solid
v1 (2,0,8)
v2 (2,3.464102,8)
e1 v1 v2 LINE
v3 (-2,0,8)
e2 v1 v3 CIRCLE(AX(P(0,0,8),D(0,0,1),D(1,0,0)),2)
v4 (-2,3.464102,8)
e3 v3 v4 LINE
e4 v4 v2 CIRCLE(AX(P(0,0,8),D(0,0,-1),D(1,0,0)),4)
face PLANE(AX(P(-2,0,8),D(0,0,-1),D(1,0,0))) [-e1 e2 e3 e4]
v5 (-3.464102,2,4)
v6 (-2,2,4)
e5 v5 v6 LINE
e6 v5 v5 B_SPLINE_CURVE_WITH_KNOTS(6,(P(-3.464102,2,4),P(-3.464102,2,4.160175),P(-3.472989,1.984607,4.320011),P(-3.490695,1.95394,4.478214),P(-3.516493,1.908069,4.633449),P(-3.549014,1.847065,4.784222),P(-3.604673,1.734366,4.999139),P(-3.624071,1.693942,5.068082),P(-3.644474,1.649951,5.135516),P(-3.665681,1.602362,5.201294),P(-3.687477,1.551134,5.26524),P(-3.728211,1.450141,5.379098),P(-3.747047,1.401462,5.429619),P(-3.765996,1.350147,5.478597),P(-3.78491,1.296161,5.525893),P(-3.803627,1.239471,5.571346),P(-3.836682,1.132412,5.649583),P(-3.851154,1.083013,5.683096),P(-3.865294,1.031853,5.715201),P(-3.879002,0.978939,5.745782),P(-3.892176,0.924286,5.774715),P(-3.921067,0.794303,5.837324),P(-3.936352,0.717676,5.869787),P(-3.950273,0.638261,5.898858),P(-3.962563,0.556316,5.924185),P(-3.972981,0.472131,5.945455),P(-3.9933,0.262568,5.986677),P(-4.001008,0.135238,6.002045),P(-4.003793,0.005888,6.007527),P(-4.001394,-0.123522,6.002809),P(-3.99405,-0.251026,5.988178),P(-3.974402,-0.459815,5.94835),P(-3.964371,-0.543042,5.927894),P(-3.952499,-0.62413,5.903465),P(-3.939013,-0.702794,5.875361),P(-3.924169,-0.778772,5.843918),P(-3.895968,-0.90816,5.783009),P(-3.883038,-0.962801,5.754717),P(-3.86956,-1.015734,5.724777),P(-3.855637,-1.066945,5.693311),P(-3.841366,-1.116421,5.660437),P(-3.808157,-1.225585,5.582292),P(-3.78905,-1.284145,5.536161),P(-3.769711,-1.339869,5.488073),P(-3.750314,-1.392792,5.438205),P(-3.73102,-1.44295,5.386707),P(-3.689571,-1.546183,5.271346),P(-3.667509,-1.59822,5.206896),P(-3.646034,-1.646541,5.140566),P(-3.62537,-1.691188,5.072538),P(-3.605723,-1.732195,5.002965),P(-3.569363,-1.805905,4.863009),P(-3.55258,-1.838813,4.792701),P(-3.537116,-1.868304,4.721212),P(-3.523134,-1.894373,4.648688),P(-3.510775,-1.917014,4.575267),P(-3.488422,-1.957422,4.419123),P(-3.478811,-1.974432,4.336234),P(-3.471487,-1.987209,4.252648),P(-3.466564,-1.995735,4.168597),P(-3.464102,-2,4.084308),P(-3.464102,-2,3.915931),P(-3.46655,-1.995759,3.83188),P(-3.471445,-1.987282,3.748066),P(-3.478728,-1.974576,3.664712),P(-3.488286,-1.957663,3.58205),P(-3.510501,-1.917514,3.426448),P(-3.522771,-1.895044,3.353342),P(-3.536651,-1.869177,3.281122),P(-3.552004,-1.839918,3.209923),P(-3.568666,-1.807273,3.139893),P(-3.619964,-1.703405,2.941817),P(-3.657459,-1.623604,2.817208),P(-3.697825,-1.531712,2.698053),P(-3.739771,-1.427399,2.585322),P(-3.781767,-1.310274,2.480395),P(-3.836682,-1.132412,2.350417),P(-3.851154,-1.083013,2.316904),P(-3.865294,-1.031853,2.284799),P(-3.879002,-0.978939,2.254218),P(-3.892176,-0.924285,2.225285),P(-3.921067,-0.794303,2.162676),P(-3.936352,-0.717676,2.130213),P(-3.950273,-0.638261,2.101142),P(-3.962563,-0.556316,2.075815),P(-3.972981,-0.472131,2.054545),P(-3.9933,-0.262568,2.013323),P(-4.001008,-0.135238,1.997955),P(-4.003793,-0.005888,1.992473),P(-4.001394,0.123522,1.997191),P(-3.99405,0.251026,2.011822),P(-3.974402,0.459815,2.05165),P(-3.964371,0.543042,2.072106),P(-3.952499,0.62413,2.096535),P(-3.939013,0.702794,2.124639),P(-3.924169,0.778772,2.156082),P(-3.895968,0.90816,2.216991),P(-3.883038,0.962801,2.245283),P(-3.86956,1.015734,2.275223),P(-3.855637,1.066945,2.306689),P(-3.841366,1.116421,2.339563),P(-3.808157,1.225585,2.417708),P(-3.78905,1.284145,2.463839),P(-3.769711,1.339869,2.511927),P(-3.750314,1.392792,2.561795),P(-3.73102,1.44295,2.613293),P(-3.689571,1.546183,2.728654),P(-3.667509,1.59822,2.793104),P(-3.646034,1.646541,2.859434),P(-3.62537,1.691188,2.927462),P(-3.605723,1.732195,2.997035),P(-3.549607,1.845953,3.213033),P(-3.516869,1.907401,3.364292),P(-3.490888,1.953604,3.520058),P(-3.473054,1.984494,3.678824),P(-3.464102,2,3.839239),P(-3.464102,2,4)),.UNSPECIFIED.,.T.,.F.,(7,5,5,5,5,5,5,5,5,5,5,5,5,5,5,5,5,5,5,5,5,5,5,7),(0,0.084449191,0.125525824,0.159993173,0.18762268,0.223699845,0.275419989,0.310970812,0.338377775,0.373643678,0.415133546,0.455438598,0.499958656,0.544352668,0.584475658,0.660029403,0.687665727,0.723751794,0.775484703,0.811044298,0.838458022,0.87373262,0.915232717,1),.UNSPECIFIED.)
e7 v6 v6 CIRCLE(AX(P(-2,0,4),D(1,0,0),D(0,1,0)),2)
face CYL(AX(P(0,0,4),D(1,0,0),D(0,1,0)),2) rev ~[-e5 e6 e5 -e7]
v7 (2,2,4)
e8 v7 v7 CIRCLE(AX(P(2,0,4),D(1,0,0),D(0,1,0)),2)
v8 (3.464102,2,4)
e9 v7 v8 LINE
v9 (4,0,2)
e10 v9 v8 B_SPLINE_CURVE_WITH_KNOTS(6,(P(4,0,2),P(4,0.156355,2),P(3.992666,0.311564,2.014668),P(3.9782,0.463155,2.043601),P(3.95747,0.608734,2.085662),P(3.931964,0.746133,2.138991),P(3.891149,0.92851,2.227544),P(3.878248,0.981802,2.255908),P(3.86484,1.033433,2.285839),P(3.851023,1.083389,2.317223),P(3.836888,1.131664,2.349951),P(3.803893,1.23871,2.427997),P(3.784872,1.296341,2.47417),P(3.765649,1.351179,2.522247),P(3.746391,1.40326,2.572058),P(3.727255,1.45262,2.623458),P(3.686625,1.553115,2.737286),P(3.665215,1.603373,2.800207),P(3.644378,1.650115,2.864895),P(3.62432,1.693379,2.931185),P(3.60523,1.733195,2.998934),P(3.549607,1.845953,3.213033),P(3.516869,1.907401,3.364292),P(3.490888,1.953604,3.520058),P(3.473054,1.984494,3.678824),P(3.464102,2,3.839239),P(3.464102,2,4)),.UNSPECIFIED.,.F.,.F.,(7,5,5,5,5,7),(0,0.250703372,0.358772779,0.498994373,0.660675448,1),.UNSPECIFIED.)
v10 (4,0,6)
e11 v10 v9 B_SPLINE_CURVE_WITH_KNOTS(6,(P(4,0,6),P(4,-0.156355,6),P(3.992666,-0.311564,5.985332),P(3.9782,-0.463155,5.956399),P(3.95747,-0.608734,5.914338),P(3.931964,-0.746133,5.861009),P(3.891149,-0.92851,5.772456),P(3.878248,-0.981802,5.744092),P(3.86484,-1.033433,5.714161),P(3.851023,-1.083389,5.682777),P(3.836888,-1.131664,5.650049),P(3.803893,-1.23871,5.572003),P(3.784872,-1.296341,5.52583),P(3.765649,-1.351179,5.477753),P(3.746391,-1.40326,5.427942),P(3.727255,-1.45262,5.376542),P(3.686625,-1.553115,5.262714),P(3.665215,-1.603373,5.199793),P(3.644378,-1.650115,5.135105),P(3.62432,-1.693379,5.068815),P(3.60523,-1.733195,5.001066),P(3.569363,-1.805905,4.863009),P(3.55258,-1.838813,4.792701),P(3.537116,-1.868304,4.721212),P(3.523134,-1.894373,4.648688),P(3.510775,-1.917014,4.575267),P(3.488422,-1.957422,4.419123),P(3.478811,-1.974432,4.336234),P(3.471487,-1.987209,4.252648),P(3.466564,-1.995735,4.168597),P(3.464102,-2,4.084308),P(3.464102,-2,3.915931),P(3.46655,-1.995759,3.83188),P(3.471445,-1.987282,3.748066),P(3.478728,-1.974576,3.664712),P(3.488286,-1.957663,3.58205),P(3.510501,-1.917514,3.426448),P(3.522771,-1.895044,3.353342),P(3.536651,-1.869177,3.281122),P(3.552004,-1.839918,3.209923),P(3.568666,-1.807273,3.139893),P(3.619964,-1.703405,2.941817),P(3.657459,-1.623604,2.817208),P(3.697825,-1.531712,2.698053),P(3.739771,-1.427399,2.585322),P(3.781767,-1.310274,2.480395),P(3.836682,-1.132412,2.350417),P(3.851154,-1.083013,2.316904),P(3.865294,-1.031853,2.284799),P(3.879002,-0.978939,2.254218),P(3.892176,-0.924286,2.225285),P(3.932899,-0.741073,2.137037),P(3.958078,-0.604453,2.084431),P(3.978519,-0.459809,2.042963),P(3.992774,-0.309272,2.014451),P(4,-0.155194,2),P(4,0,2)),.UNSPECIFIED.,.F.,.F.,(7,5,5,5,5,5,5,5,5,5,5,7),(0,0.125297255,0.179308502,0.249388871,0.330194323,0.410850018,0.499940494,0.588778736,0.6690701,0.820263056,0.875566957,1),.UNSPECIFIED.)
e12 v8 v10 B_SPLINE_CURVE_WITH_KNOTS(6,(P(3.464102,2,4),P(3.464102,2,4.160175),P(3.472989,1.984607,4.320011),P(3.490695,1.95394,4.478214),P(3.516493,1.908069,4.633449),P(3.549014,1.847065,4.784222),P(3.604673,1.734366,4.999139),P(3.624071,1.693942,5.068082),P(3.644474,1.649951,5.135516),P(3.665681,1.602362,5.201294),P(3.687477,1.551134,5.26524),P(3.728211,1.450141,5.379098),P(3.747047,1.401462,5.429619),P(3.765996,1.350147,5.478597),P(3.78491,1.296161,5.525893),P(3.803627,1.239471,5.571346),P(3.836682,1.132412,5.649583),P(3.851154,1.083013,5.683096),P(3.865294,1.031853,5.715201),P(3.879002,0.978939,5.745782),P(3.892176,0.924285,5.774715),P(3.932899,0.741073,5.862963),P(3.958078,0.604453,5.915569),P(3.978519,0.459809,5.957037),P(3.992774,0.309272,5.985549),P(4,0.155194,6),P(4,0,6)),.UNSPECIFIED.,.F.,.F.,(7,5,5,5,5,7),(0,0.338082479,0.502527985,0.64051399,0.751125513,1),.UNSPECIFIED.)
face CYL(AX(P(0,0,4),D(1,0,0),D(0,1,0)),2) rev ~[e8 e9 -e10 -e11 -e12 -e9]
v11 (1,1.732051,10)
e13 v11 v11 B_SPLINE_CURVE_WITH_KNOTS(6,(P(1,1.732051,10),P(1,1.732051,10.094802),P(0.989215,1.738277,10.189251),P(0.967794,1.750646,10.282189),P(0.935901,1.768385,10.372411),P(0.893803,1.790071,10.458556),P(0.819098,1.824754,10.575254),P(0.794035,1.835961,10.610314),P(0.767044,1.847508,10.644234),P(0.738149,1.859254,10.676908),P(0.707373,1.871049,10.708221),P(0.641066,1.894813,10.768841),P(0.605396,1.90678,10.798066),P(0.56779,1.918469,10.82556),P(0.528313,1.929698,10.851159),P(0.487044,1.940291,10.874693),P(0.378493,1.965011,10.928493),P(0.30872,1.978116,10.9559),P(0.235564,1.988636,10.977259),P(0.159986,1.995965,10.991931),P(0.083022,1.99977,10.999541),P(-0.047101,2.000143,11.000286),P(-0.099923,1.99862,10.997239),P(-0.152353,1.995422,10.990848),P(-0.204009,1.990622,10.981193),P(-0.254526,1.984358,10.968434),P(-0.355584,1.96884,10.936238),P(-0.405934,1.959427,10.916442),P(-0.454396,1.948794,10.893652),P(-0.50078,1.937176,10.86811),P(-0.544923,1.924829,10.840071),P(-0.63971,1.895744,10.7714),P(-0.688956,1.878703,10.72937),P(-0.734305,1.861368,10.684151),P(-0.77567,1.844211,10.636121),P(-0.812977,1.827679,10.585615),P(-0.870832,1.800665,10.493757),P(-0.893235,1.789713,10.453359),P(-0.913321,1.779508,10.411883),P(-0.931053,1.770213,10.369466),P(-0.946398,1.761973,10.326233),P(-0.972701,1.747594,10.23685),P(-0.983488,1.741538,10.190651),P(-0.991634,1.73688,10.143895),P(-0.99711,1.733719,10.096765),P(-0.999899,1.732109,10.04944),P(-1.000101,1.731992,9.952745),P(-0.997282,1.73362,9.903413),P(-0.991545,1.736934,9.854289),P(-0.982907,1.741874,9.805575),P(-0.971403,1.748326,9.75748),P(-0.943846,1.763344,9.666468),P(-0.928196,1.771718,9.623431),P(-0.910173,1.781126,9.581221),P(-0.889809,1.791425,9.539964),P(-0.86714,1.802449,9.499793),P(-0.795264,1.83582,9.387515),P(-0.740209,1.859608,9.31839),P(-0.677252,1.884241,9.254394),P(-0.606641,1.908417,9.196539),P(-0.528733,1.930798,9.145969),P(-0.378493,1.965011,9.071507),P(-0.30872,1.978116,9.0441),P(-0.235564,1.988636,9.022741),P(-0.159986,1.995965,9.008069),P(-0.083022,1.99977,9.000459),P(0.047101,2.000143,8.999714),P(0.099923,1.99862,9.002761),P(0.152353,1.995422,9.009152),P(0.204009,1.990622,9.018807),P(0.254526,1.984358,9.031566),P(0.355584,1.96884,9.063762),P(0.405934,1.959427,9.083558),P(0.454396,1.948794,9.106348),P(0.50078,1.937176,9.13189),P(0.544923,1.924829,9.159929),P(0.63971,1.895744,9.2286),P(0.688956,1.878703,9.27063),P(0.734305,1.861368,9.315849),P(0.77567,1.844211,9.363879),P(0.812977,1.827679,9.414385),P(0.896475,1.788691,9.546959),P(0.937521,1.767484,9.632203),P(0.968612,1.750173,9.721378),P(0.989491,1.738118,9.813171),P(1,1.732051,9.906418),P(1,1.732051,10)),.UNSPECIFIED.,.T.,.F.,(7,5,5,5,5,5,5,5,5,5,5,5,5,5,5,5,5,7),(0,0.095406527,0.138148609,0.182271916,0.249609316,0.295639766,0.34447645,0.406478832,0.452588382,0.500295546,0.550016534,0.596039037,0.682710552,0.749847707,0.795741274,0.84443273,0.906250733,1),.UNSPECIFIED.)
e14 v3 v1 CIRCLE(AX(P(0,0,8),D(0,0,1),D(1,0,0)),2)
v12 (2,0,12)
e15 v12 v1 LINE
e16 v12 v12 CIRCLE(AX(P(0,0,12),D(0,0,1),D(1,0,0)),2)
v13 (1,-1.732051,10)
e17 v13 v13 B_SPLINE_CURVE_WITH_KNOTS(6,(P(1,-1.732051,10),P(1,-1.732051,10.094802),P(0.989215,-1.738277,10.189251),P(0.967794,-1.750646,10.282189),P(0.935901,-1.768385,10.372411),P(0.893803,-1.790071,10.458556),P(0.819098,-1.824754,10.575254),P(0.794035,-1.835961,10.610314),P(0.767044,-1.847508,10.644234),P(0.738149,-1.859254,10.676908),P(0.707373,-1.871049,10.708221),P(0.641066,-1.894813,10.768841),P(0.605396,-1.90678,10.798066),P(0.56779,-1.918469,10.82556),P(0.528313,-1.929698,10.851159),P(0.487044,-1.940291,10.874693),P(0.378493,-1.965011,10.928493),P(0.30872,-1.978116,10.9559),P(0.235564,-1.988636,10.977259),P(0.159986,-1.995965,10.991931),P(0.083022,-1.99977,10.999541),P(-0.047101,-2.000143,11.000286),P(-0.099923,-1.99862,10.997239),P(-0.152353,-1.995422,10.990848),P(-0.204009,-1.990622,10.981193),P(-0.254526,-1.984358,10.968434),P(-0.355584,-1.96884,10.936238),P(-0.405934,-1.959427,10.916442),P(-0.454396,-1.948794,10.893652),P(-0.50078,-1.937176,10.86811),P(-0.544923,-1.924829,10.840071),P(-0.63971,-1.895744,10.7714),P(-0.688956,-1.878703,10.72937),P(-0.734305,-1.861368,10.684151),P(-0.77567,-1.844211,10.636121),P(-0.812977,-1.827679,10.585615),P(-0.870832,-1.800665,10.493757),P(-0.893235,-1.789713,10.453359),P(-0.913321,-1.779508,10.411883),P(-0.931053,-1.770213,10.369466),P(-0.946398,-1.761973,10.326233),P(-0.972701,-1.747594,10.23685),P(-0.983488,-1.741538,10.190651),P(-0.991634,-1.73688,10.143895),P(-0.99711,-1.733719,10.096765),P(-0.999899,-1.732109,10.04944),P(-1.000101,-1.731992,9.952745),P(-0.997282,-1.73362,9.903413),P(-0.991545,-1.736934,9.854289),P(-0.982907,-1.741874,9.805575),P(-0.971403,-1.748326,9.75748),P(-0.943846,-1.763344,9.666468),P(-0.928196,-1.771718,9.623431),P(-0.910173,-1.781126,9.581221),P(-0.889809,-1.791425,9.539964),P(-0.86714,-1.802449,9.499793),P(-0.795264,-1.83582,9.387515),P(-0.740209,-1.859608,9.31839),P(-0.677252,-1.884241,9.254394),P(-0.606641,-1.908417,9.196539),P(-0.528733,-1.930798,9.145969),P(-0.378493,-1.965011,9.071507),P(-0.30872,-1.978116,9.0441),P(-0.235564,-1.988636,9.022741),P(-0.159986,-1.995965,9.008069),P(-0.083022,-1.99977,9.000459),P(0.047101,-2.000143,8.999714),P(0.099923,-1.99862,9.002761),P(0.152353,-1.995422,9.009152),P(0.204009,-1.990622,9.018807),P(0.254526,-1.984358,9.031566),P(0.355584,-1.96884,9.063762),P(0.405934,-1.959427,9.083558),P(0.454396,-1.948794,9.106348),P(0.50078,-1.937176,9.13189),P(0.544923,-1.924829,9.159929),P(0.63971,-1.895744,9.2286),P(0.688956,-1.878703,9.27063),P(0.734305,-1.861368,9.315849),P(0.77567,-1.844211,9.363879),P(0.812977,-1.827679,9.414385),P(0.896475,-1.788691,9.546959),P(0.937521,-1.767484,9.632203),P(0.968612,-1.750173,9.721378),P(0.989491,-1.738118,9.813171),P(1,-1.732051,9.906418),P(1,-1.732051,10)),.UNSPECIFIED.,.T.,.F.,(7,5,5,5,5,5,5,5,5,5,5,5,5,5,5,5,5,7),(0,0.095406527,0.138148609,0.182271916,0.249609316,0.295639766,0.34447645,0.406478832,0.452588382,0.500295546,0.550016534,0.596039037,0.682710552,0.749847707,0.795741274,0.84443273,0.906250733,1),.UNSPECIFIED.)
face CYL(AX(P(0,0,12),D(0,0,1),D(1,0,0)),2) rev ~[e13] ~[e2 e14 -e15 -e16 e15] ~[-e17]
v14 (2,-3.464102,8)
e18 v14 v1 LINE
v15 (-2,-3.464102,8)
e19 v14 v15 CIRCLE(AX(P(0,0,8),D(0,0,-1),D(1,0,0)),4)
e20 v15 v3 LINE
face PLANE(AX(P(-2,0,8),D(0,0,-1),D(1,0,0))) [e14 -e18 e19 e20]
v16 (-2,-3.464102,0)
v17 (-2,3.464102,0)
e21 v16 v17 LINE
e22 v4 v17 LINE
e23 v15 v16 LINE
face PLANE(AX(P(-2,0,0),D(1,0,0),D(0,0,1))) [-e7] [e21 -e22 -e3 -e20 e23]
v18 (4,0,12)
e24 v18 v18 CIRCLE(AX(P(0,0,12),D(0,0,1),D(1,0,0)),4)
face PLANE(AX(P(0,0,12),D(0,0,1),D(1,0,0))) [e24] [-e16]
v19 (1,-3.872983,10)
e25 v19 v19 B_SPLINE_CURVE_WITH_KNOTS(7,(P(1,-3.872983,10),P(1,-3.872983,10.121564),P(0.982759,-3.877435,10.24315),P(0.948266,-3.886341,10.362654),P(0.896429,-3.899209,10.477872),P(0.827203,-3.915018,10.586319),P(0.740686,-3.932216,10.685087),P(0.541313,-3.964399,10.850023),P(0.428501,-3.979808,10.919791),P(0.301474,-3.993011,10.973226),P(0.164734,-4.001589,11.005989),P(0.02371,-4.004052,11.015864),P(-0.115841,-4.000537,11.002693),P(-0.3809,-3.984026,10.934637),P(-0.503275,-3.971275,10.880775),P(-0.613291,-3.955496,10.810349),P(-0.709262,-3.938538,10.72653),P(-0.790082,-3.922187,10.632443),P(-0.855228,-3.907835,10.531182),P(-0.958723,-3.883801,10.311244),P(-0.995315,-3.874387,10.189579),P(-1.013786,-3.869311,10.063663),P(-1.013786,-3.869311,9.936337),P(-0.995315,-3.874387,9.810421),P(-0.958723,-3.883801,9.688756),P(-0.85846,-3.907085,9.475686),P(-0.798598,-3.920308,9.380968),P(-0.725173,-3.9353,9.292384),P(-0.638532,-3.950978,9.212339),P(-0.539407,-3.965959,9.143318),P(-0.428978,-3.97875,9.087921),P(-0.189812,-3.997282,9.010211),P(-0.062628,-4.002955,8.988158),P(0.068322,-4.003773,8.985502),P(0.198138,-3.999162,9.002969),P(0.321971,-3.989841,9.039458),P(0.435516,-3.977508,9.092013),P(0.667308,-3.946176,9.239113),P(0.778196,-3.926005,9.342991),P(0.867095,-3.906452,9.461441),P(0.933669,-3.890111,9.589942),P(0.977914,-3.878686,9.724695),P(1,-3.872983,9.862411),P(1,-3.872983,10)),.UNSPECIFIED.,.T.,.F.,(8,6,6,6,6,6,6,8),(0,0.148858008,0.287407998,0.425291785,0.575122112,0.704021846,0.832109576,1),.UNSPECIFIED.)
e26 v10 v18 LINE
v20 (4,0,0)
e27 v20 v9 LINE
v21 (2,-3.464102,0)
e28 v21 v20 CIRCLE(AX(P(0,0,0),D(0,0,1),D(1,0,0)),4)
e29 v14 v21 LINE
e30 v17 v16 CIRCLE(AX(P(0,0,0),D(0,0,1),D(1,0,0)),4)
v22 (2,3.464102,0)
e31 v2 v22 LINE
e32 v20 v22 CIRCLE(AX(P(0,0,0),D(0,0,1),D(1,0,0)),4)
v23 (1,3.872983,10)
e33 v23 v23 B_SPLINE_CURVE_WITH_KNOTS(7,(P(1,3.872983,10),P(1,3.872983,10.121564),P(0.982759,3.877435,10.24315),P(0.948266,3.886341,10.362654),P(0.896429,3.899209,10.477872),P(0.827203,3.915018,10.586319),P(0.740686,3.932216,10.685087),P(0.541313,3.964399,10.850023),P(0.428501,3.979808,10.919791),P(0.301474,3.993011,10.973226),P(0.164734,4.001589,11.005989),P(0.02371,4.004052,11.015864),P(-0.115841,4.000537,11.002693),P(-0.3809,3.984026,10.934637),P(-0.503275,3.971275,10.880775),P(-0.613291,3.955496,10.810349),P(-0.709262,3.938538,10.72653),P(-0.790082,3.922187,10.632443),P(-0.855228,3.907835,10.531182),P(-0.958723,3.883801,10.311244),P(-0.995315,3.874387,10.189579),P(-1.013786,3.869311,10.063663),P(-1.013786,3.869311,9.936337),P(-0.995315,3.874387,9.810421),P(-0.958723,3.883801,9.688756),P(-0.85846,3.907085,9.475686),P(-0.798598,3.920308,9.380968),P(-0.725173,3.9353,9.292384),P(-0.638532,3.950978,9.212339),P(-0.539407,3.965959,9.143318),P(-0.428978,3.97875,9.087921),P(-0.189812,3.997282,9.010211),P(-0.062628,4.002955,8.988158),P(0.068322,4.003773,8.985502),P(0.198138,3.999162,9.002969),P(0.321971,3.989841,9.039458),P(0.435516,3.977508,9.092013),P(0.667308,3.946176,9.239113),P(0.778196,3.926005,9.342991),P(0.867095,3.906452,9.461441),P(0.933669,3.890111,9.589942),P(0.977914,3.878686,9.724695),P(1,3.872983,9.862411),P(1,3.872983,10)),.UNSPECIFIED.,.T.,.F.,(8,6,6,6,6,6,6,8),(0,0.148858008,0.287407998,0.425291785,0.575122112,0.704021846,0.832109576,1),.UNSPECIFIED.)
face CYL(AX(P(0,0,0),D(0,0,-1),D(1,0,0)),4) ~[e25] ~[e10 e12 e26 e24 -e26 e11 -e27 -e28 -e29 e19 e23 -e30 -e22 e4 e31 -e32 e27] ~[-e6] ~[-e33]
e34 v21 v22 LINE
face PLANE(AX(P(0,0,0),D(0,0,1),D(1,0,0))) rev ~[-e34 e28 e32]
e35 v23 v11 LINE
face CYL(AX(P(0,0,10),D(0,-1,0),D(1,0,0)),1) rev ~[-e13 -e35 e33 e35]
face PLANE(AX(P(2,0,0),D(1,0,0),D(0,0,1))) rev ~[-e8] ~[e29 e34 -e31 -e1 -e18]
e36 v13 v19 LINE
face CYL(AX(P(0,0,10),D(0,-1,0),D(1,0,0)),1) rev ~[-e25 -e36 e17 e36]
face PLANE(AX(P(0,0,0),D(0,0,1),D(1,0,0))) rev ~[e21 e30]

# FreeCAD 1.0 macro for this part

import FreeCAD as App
import Part
import Sketcher

V = App.Vector
Q = App.Units.Quantity

doc = App.newDocument("Part")
body = doc.addObject("PartDesign::Body", "Body")

sketch1 = body.newObject("Sketcher::SketchObject", "Sketch")
sketch1.AttachmentSupport = (doc.getObject("XY_Plane"), [""])
sketch1.MapMode = "FlatFace"
sketch1.addGeometry(Part.Circle(V(0, 0, 0), V(0, 0, 1), 4), False)
sketch1.addConstraint(Sketcher.Constraint("Coincident", 0, 3, -1, 1))
sketch1.addConstraint(Sketcher.Constraint("Diameter", 0, Q("8 mm")))
pad1 = body.newObject("PartDesign::Pad", "Pad")
pad1.Profile = sketch1
pad1.Length = 12

sketch2 = body.newObject("Sketcher::SketchObject", "Sketch001")
sketch2.AttachmentSupport = (doc.getObject("XZ_Plane"), [""])
sketch2.MapMode = "FlatFace"
sketch2.addGeometry(Part.LineSegment(V(-2, 8, 0), V(-2, 0, 0)), False)
sketch2.addGeometry(Part.LineSegment(V(-2, 0, 0), V(2, 0, 0)), False)
sketch2.addGeometry(Part.LineSegment(V(2, 0, 0), V(2, 8, 0)), False)
sketch2.addGeometry(Part.LineSegment(V(2, 8, 0), V(-2, 8, 0)), False)
sketch2.addConstraint(Sketcher.Constraint("Coincident", 0, 2, 1, 1))
sketch2.addConstraint(Sketcher.Constraint("Coincident", 1, 2, 2, 1))
sketch2.addConstraint(Sketcher.Constraint("Coincident", 2, 2, 3, 1))
sketch2.addConstraint(Sketcher.Constraint("Coincident", 3, 2, 0, 1))
sketch2.addConstraint(Sketcher.Constraint("Vertical", 0))
sketch2.addConstraint(Sketcher.Constraint("Horizontal", 1))
sketch2.addConstraint(Sketcher.Constraint("Vertical", 2))
sketch2.addConstraint(Sketcher.Constraint("Horizontal", 3))
sketch2.addConstraint(Sketcher.Constraint("Symmetric", 0, 2, 1, 2, -1, 1))
sketch2.addConstraint(Sketcher.Constraint("DistanceX", 1, 1, 1, 2, Q("4 mm")))
sketch2.addConstraint(Sketcher.Constraint("DistanceY", 0, 2, 0, 1, Q("8 mm")))
pocket1 = body.newObject("PartDesign::Pocket", "Pocket")
pocket1.Profile = sketch2
pocket1.Length = 25
pocket1.Midplane = True

sketch3 = body.newObject("Sketcher::SketchObject", "Sketch002")
sketch3.AttachmentSupport = (doc.getObject("XZ_Plane"), [""])
sketch3.MapMode = "FlatFace"
sketch3.addGeometry(Part.Circle(V(0, 10, 0), V(0, 0, 1), 1), False)
sketch3.addConstraint(Sketcher.Constraint("PointOnObject", 0, 3, -2))
sketch3.addConstraint(Sketcher.Constraint("Diameter", 0, Q("2 mm")))
sketch3.addConstraint(Sketcher.Constraint("DistanceY", -1, 1, 0, 3, Q("10 mm")))
pocket2 = body.newObject("PartDesign::Pocket", "Pocket001")
pocket2.Profile = sketch3
pocket2.Length = 25
pocket2.Midplane = True

sketch4 = body.newObject("Sketcher::SketchObject", "Sketch003")
sketch4.AttachmentSupport = (doc.getObject("XY_Plane"), [""])
sketch4.MapMode = "FlatFace"
sketch4.AttachmentOffset = App.Placement(V(0, 0, 12), App.Rotation())
sketch4.addGeometry(Part.Circle(V(0, 0, 0), V(0, 0, 1), 2), False)
sketch4.addConstraint(Sketcher.Constraint("Coincident", 0, 3, -1, 1))
sketch4.addConstraint(Sketcher.Constraint("Diameter", 0, Q("4 mm")))
pocket3 = body.newObject("PartDesign::Pocket", "Pocket002")
pocket3.Profile = sketch4
pocket3.Type = "ThroughAll"

sketch5 = body.newObject("Sketcher::SketchObject", "Sketch004")
sketch5.AttachmentSupport = (doc.getObject("YZ_Plane"), [""])
sketch5.MapMode = "FlatFace"
sketch5.addGeometry(Part.Circle(V(0, 4, 0), V(0, 0, 1), 2), False)
sketch5.addConstraint(Sketcher.Constraint("PointOnObject", 0, 3, -2))
sketch5.addConstraint(Sketcher.Constraint("Diameter", 0, Q("4 mm")))
sketch5.addConstraint(Sketcher.Constraint("DistanceY", -1, 1, 0, 3, Q("4 mm")))
pocket4 = body.newObject("PartDesign::Pocket", "Pocket003")
pocket4.Profile = sketch5
pocket4.Length = 25
pocket4.Midplane = True

doc.recompute()
